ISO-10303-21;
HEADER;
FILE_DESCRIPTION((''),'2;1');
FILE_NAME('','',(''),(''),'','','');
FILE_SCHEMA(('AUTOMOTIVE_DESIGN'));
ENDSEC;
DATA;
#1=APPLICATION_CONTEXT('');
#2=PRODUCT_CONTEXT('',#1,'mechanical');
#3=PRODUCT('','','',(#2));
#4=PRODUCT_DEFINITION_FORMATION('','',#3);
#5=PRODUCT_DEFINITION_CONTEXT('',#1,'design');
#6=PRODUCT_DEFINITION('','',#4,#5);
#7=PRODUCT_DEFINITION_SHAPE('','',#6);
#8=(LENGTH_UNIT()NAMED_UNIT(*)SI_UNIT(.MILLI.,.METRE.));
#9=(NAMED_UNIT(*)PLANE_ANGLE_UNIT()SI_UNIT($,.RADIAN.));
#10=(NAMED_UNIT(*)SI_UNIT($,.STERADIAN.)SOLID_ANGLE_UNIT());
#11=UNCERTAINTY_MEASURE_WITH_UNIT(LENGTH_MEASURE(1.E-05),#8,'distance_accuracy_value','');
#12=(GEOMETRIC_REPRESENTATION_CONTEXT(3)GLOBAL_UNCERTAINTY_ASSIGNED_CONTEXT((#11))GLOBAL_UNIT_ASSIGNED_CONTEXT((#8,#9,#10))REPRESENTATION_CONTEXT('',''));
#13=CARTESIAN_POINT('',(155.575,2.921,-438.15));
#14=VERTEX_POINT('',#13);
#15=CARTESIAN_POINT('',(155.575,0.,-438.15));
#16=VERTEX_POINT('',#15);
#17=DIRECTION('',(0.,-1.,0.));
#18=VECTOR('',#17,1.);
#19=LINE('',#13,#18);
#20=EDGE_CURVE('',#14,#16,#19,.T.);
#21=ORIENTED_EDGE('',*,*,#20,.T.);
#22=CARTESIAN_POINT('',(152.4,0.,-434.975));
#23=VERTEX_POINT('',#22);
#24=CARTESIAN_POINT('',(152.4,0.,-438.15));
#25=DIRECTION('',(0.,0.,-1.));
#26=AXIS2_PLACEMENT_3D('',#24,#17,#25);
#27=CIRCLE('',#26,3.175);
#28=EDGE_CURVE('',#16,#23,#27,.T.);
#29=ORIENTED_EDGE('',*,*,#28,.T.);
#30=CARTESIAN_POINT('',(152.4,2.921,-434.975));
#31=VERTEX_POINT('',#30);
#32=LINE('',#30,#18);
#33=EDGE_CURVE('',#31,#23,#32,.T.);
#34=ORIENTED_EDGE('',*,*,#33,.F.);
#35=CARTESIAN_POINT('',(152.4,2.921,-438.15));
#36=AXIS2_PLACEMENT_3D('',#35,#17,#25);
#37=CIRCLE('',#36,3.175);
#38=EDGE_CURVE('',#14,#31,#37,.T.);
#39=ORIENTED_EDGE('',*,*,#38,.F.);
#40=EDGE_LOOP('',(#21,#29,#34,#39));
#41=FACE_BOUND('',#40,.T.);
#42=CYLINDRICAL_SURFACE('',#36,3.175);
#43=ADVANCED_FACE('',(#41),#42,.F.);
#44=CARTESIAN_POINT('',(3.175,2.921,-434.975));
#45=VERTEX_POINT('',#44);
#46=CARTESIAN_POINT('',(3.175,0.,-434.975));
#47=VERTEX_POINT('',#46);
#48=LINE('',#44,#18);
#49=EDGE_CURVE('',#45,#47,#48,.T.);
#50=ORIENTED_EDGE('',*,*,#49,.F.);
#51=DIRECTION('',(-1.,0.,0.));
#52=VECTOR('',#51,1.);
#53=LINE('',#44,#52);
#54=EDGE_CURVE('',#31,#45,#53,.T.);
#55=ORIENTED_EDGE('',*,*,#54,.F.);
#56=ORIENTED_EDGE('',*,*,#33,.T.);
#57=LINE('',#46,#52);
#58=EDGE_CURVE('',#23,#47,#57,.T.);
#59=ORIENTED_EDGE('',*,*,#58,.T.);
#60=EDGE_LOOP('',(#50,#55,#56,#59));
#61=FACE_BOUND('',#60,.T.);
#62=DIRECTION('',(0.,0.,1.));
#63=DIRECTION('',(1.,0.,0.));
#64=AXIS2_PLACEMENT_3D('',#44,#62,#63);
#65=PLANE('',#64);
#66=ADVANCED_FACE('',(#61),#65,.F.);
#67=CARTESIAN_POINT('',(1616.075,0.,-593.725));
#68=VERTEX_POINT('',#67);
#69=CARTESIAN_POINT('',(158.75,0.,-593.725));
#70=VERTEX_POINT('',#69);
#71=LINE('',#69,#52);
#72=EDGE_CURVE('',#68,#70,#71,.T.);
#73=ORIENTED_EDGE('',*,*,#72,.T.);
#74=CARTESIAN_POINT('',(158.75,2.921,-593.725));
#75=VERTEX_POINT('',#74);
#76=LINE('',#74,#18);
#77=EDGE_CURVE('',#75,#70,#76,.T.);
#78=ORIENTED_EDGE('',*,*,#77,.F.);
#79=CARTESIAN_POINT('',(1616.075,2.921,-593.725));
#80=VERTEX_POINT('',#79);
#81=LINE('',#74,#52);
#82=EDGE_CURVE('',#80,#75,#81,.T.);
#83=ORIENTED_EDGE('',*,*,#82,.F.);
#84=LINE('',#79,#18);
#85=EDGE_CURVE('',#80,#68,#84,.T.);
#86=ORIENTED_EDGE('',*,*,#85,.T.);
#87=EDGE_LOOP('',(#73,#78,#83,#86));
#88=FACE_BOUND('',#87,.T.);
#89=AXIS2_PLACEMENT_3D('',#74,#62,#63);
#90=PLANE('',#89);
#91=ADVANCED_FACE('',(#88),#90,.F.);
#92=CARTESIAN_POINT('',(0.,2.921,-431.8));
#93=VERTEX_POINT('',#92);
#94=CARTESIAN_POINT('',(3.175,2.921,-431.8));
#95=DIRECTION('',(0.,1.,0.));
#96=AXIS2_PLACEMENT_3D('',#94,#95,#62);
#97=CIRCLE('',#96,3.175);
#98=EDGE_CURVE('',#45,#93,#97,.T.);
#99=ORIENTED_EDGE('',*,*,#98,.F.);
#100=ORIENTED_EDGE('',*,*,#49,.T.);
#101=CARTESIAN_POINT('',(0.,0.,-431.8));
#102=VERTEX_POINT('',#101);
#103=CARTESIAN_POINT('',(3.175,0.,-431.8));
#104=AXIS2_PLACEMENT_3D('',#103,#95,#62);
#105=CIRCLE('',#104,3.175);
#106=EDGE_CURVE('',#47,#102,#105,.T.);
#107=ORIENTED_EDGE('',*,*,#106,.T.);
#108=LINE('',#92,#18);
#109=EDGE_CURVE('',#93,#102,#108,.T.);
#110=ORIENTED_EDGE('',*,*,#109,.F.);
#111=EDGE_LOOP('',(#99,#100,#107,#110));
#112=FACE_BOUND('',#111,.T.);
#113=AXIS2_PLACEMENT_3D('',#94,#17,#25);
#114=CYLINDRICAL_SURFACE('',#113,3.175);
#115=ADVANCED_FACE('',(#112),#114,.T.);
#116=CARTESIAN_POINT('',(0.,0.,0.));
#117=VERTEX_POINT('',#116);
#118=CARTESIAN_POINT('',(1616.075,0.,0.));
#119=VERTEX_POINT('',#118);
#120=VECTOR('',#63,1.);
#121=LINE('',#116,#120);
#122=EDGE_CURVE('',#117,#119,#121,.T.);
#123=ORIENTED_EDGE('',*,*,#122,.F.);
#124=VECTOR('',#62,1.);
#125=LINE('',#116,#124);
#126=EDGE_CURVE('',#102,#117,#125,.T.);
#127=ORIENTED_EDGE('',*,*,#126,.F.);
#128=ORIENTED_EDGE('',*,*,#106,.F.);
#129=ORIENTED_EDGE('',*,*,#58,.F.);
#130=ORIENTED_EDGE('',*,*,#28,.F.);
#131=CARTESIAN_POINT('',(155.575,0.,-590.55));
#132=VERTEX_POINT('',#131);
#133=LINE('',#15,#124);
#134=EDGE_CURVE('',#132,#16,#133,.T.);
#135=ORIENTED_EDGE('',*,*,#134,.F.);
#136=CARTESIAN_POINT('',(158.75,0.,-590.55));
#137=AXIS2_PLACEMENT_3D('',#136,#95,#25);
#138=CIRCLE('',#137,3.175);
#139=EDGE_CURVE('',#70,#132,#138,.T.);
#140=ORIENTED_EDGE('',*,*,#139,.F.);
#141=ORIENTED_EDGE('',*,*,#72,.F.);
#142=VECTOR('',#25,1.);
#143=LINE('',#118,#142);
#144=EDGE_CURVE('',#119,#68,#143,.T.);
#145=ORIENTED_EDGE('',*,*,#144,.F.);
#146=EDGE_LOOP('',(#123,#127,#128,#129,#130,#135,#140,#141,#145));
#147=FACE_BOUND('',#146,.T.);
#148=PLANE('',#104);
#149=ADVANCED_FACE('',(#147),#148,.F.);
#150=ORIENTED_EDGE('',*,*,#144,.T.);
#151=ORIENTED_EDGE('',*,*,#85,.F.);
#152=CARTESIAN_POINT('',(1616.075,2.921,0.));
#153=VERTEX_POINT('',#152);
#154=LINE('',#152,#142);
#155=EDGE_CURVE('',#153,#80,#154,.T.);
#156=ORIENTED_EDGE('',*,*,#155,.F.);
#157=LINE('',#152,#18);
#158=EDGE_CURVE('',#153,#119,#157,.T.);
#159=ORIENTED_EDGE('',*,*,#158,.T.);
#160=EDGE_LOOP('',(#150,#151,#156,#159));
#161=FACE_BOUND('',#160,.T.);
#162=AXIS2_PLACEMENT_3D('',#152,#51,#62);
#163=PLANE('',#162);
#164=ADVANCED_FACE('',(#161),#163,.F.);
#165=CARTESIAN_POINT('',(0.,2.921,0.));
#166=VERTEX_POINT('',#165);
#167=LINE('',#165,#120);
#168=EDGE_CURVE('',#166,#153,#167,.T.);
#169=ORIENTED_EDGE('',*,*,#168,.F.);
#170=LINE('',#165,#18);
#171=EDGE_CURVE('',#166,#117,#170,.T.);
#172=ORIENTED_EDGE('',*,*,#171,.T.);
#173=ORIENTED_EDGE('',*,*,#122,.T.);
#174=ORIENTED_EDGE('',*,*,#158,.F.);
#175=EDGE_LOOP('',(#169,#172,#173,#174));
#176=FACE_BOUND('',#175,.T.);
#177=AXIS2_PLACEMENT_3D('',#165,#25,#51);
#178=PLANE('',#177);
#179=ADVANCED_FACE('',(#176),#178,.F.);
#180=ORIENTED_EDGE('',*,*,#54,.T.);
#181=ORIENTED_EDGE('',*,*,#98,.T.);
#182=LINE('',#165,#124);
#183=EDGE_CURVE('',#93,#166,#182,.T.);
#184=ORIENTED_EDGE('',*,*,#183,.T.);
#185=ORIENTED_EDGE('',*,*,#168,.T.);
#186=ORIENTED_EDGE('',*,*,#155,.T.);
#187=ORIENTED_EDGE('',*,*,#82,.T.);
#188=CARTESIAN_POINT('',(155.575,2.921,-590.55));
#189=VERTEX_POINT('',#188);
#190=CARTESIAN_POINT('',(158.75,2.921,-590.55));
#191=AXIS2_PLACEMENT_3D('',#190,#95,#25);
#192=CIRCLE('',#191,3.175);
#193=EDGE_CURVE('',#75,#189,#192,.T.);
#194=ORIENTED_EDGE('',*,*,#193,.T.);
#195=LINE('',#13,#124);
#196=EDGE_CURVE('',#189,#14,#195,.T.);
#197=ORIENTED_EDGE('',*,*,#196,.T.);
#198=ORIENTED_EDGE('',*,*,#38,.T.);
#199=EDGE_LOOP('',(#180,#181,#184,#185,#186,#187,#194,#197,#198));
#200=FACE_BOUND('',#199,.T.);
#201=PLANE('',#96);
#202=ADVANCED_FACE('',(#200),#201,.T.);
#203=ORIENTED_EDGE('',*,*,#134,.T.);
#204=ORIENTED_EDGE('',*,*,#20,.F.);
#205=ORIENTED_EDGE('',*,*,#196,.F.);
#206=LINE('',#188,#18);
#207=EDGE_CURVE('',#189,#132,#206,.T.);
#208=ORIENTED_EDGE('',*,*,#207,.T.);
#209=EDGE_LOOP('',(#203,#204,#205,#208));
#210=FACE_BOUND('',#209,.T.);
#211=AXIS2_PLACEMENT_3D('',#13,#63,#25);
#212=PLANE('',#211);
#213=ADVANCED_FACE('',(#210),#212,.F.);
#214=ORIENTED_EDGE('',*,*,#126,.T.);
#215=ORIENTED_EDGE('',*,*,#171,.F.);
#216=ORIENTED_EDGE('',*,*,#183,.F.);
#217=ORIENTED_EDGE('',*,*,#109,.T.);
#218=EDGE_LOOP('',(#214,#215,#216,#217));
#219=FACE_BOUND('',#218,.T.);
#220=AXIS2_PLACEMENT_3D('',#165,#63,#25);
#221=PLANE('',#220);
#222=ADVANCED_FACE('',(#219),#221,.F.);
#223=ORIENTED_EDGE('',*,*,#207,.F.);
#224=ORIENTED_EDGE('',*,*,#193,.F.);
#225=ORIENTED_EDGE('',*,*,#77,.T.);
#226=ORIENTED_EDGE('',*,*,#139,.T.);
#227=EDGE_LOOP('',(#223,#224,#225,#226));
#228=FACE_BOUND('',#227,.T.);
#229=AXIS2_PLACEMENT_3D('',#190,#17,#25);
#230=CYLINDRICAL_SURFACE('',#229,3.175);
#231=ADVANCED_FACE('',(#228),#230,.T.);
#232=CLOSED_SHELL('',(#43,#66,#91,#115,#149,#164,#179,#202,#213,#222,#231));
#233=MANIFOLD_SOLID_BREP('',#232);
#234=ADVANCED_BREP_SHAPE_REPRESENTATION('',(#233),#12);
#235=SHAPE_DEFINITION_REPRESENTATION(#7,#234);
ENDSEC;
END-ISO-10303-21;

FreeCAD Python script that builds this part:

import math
import FreeCAD as App
import Part
import Sketcher
from FreeCAD import Vector
Q = App.Units.Quantity

doc = App.newDocument("Part")
body = doc.addObject("PartDesign::Body", "Body")

# Sketch on XZ plane
sketch1 = doc.addObject("Sketcher::SketchObject", "Sketch")
body.addObject(sketch1)
sketch1.AttachmentSupport = (doc.XZ_Plane, [""])
sketch1.MapMode = "FlatFace"
sketch1.addGeometry([
    Part.LineSegment(Vector(0, 0, 0), Vector(1616.1, 0, 0)),  # 0
    Part.LineSegment(Vector(1616.1, 0, 0), Vector(1616.1, -593.7, 0)),  # 1
    Part.LineSegment(Vector(1616.1, -593.7, 0), Vector(158.8, -593.7, 0)),  # 2
    Part.ArcOfCircle(Part.Circle(Vector(158.8, -590.5, 0), Vector(0, 0, 1), 3.2), math.radians(-180), math.radians(-90)),  # 3
    Part.LineSegment(Vector(155.6, -590.5, 0), Vector(155.6, -438.1, 0)),  # 4
    Part.ArcOfCircle(Part.Circle(Vector(152.4, -438.2, 0), Vector(0, 0, 1), 3.2), math.radians(0), math.radians(90)),  # 5
    Part.LineSegment(Vector(152.4, -435, 0), Vector(3.2, -435, 0)),  # 6
    Part.ArcOfCircle(Part.Circle(Vector(3.2, -431.8, 0), Vector(0, 0, 1), 3.2), math.radians(-180), math.radians(-90)),  # 7
    Part.LineSegment(Vector(0, -431.8, 0), Vector(0, 0, 0)),  # 8
], False)
sketch1.addConstraint([
    Sketcher.Constraint("Coincident", 0, 2, 1, 1),
    Sketcher.Constraint("Coincident", 1, 2, 2, 1),
    Sketcher.Constraint("Tangent", 2, 2, 3, 2),
    Sketcher.Constraint("Tangent", 3, 1, 4, 1),
    Sketcher.Constraint("Tangent", 4, 2, 5, 1),
    Sketcher.Constraint("Tangent", 5, 2, 6, 1),
    Sketcher.Constraint("Tangent", 6, 2, 7, 2),
    Sketcher.Constraint("Tangent", 7, 1, 8, 1),
    Sketcher.Constraint("Coincident", 8, 2, 0, 1),
    Sketcher.Constraint("Horizontal", 0),
    Sketcher.Constraint("Vertical", 1),
    Sketcher.Constraint("Horizontal", 2),
    Sketcher.Constraint("Vertical", 4),
    Sketcher.Constraint("Horizontal", 6),
    Sketcher.Constraint("Vertical", 8),
    Sketcher.Constraint("Coincident", 8, 2, -1, 1),
    Sketcher.Constraint("Equal", 3, 5),
    Sketcher.Constraint("Equal", 5, 7),
    Sketcher.Constraint("DistanceY", 4, 1, 4, 2, Q("6 in")),
    Sketcher.Constraint("DistanceY", 8, 1, 8, 2, Q("17 in")),
    Sketcher.Constraint("DistanceX", -1, 1, 5, 3, Q("6 in")),
    Sketcher.Constraint("Radius", 3, Q("0.125 in")),
    Sketcher.Constraint("DistanceX", 7, 3, 0, 2, Q("63.5 in")),
])
pad1 = doc.addObject("PartDesign::Pad", "Pad")
body.addObject(pad1)
pad1.Profile = sketch1
pad1.Length = Q("0.115 in")
pad1.Reversed = True

doc.recompute()
